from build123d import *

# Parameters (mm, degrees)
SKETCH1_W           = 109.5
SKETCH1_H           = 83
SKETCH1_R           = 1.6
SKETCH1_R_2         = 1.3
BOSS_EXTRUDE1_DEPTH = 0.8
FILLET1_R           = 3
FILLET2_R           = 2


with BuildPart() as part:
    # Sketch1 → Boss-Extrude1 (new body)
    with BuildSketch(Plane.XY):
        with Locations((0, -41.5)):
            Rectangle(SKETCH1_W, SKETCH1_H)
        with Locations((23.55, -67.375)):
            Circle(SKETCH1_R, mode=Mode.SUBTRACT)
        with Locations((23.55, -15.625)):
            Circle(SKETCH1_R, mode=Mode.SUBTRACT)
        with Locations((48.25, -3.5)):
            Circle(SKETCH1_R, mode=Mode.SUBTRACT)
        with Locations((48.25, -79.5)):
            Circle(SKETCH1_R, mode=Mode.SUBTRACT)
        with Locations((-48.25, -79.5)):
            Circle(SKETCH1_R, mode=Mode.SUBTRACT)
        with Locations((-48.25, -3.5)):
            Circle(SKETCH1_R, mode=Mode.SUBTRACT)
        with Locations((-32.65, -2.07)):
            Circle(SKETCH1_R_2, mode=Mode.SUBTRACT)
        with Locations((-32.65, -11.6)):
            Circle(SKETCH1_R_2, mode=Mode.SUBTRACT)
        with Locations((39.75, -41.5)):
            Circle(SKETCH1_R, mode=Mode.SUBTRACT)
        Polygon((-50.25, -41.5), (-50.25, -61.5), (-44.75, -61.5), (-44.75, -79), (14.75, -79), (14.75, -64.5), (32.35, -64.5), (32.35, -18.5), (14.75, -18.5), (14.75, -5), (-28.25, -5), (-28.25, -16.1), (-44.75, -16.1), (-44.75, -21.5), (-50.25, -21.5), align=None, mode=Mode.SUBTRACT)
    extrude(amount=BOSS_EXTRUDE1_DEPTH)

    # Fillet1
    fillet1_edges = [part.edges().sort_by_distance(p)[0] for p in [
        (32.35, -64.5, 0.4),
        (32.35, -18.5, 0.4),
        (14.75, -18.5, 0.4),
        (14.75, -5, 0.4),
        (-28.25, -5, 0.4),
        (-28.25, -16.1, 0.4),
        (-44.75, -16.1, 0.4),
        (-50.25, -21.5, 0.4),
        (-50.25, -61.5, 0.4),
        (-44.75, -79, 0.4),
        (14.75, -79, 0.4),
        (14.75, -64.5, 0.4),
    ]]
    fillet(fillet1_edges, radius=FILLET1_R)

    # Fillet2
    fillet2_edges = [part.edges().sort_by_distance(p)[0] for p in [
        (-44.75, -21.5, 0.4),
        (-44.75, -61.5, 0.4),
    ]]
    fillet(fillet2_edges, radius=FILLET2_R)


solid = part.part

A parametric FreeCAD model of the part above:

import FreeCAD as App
import Part
import Sketcher
from FreeCAD import Vector


def edges_at(feature, points):
    """Names of the edges that pass closest to the given points."""
    edges = feature.Shape.Edges
    near = lambda p: min(range(len(edges)), key=lambda i: edges[i].distToShape(Part.Vertex(*p))[0])
    return sorted({f"Edge{near(p) + 1}" for p in points})

doc = App.newDocument("Part")
body = doc.addObject("PartDesign::Body", "Body")

# Sketch on XY plane
sketch1 = body.newObject("Sketcher::SketchObject", "Sketch")
sketch1.AttachmentSupport = (doc.getObject("XY_Plane"), [""])
sketch1.MapMode = "FlatFace"
sketch1.addGeometry([
    Part.LineSegment(Vector(-54.8, 0, 0), Vector(-54.8, -83, 0)),  # 0
    Part.LineSegment(Vector(-54.8, -83, 0), Vector(54.8, -83, 0)),  # 1
    Part.LineSegment(Vector(54.8, -83, 0), Vector(54.8, 0, 0)),  # 2
    Part.LineSegment(Vector(54.8, 0, 0), Vector(-54.8, 0, 0)),  # 3
    Part.Circle(Vector(-48.2, -79.5, 0), Vector(0, 0, 1), 1.6),  # 4
    Part.LineSegment(Vector(-50.2, -61.5, 0), Vector(-50.2, -21.5, 0)),  # 5
    Part.LineSegment(Vector(-50.2, -21.5, 0), Vector(-44.8, -21.5, 0)),  # 6
    Part.LineSegment(Vector(-44.8, -21.5, 0), Vector(-44.8, -16.1, 0)),  # 7
    Part.LineSegment(Vector(-44.8, -16.1, 0), Vector(-28.2, -16.1, 0)),  # 8
    Part.LineSegment(Vector(-28.2, -16.1, 0), Vector(-28.2, -5, 0)),  # 9
    Part.LineSegment(Vector(-28.2, -5, 0), Vector(14.8, -5, 0)),  # 10
    Part.LineSegment(Vector(14.8, -5, 0), Vector(14.8, -18.5, 0)),  # 11
    Part.LineSegment(Vector(14.8, -18.5, 0), Vector(32.4, -18.5, 0)),  # 12
    Part.LineSegment(Vector(32.4, -18.5, 0), Vector(32.4, -64.5, 0)),  # 13
    Part.LineSegment(Vector(32.4, -64.5, 0), Vector(14.8, -64.5, 0)),  # 14
    Part.LineSegment(Vector(14.8, -64.5, 0), Vector(14.8, -79, 0)),  # 15
    Part.LineSegment(Vector(14.8, -79, 0), Vector(-44.8, -79, 0)),  # 16
    Part.LineSegment(Vector(-44.8, -79, 0), Vector(-44.8, -61.5, 0)),  # 17
    Part.LineSegment(Vector(-44.8, -61.5, 0), Vector(-50.2, -61.5, 0)),  # 18
    Part.Circle(Vector(23.6, -67.4, 0), Vector(0, 0, 1), 1.6),  # 19
    Part.Circle(Vector(48.2, -79.5, 0), Vector(0, 0, 1), 1.6),  # 20
    Part.Circle(Vector(39.8, -41.5, 0), Vector(0, 0, 1), 1.6),  # 21
    Part.Circle(Vector(-32.6, -11.6, 0), Vector(0, 0, 1), 1.3),  # 22
    Part.Circle(Vector(-48.2, -3.5, 0), Vector(0, 0, 1), 1.6),  # 23
    Part.Circle(Vector(-32.6, -2.1, 0), Vector(0, 0, 1), 1.3),  # 24
    Part.Circle(Vector(23.6, -15.6, 0), Vector(0, 0, 1), 1.6),  # 25
    Part.Circle(Vector(48.2, -3.5, 0), Vector(0, 0, 1), 1.6),  # 26
], False)
sketch1.addConstraint([
    Sketcher.Constraint("Coincident", 0, 2, 1, 1),
    Sketcher.Constraint("Coincident", 1, 2, 2, 1),
    Sketcher.Constraint("Coincident", 2, 2, 3, 1),
    Sketcher.Constraint("Coincident", 3, 2, 0, 1),
    Sketcher.Constraint("Coincident", 5, 2, 6, 1),
    Sketcher.Constraint("Coincident", 6, 2, 7, 1),
    Sketcher.Constraint("Coincident", 7, 2, 8, 1),
    Sketcher.Constraint("Coincident", 8, 2, 9, 1),
    Sketcher.Constraint("Coincident", 9, 2, 10, 1),
    Sketcher.Constraint("Coincident", 10, 2, 11, 1),
    Sketcher.Constraint("Coincident", 11, 2, 12, 1),
    Sketcher.Constraint("Coincident", 12, 2, 13, 1),
    Sketcher.Constraint("Coincident", 13, 2, 14, 1),
    Sketcher.Constraint("Coincident", 14, 2, 15, 1),
    Sketcher.Constraint("Coincident", 15, 2, 16, 1),
    Sketcher.Constraint("Coincident", 16, 2, 17, 1),
    Sketcher.Constraint("Coincident", 17, 2, 18, 1),
    Sketcher.Constraint("Coincident", 18, 2, 5, 1),
    Sketcher.Constraint("Vertical", 0),
    Sketcher.Constraint("Horizontal", 1),
    Sketcher.Constraint("Vertical", 2),
    Sketcher.Constraint("Horizontal", 3),
    Sketcher.Constraint("Vertical", 5),
    Sketcher.Constraint("Horizontal", 6),
    Sketcher.Constraint("Vertical", 7),
    Sketcher.Constraint("Horizontal", 8),
    Sketcher.Constraint("Vertical", 9),
    Sketcher.Constraint("Horizontal", 10),
    Sketcher.Constraint("Vertical", 11),
    Sketcher.Constraint("Horizontal", 12),
    Sketcher.Constraint("Vertical", 13),
    Sketcher.Constraint("Horizontal", 14),
    Sketcher.Constraint("Vertical", 15),
    Sketcher.Constraint("Horizontal", 16),
    Sketcher.Constraint("Vertical", 17),
    Sketcher.Constraint("Horizontal", 18),
    Sketcher.Constraint("Equal", 4, 19),
    Sketcher.Constraint("Equal", 19, 20),
    Sketcher.Constraint("Equal", 20, 21),
    Sketcher.Constraint("Equal", 21, 23),
    Sketcher.Constraint("Equal", 22, 24),
    Sketcher.Constraint("Equal", 23, 25),
    Sketcher.Constraint("Equal", 25, 26),
    Sketcher.Constraint("Symmetric", 2, 2, 3, 2, -1, 1),
    Sketcher.Constraint("Symmetric", 4, 3, 20, 3, -2),
    Sketcher.Constraint("Symmetric", 23, 3, 26, 3, -2),
    Sketcher.Constraint("Vertical", 4, 3, 23, 3),
    Sketcher.Constraint("Vertical", 22, 3, 24, 3),
    Sketcher.Constraint("Vertical", 19, 3, 25, 3),
    Sketcher.Constraint("Vertical", 11, 2, 14, 2),
    Sketcher.Constraint("Vertical", 7, 2, 16, 2),
    Sketcher.Constraint("Diameter", 4, 3.2),
    Sketcher.Constraint("Diameter", 22, 2.6),
    Sketcher.Constraint("DistanceX", 10, 1, 10, 2, 43.0),
    Sketcher.Constraint("DistanceY", 0, 2, 0, 1, 83.0),
    Sketcher.Constraint("DistanceY", 5, 1, 5, 2, 40.0),
    Sketcher.Constraint("DistanceY", 13, 2, 13, 1, 46.0),
    Sketcher.Constraint("DistanceX", 1, 1, 1, 2, 109.5),
    Sketcher.Constraint("DistanceX", 6, 1, 6, 2, 5.5),
    Sketcher.Constraint("DistanceX", 8, 1, 8, 2, 16.5),
    Sketcher.Constraint("DistanceX", 12, 1, 12, 2, 17.6),
    Sketcher.Constraint("DistanceY", 7, 1, 7, 2, 5.4),
    Sketcher.Constraint("DistanceY", 9, 1, 9, 2, 11.1),
    Sketcher.Constraint("DistanceY", 11, 2, 11, 1, 13.5),
    Sketcher.Constraint("DistanceY", 15, 2, 15, 1, 14.5),
    Sketcher.Constraint("DistanceY", 9, 2, -1, 1, 5.0),
    Sketcher.Constraint("DistanceY", 20, 3, 21, 3, 38.0),
    Sketcher.Constraint("DistanceX", 4, 3, 21, 3, 88.0),
    Sketcher.Constraint("DistanceY", 4, 3, 23, 3, 76.0),
    Sketcher.Constraint("DistanceX", 21, 3, 1, 2, 15.0),
    Sketcher.Constraint("DistanceX", 5, 2, 23, 3, 2.0),
    Sketcher.Constraint("DistanceY", 5, 2, 23, 3, 18.0),
    Sketcher.Constraint("DistanceY", 22, 3, -1, 1, 11.6),
    Sketcher.Constraint("DistanceX", 4, 3, 19, 3, 71.8),
    Sketcher.Constraint("DistanceX", 4, 3, 22, 3, 15.6),
    Sketcher.Constraint("DistanceY", 24, 3, -1, 1, 2.07),
    Sketcher.Constraint("DistanceY", 19, 3, 25, 3, 51.75),
    Sketcher.Constraint("DistanceY", 19, 3, -1, 1, 67.375),
])
pad1 = body.newObject("PartDesign::Pad", "Pad")
pad1.Profile = sketch1
pad1.Length = 0.8
doc.recompute()

fillet = body.newObject("PartDesign::Fillet", "Fillet")
fillet.Base = (pad1, edges_at(pad1, [
    (32.35, -64.5, 0.4),
    (32.35, -18.5, 0.4),
    (14.75, -18.5, 0.4),
    (14.75, -5, 0.4),
    (-28.25, -5, 0.4),
    (-28.25, -16.1, 0.4),
    (-44.75, -16.1, 0.4),
    (-50.25, -21.5, 0.4),
    (-50.25, -61.5, 0.4),
    (-44.75, -79, 0.4),
    (14.75, -79, 0.4),
    (14.75, -64.5, 0.4),
]))
fillet.Radius = 3
doc.recompute()

fillet2 = body.newObject("PartDesign::Fillet", "Fillet001")
fillet2.Base = (fillet, edges_at(fillet, [(-44.75, -21.5, 0.4), (-44.75, -61.5, 0.4)]))
fillet2.Radius = 2

doc.recompute()
